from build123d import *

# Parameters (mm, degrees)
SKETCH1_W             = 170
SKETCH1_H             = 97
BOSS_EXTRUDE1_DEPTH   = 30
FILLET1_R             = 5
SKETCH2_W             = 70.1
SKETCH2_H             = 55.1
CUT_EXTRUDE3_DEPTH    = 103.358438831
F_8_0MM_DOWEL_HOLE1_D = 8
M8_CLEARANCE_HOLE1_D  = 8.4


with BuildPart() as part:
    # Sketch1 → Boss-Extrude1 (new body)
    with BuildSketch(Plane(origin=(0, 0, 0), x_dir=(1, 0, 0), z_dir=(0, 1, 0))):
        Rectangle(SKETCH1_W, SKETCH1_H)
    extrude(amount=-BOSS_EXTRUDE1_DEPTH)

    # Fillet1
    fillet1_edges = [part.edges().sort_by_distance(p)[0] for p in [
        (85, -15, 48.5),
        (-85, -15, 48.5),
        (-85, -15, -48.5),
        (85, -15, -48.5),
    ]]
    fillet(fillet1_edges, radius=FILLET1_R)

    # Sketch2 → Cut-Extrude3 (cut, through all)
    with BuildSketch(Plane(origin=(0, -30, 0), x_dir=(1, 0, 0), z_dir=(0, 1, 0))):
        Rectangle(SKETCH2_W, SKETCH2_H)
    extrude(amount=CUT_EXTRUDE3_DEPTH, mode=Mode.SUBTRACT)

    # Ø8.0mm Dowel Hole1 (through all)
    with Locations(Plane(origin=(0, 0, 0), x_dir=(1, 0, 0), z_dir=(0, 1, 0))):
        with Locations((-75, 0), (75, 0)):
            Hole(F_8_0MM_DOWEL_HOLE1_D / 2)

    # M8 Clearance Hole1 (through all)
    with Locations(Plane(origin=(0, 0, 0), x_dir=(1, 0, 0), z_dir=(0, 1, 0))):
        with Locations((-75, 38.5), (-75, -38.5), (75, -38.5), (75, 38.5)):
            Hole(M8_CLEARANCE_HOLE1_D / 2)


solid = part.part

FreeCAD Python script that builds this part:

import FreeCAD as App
import Part
import Sketcher
from FreeCAD import Vector


def edges_at(feature, points):
    """Names of the edges that pass closest to the given points."""
    edges = feature.Shape.Edges
    near = lambda p: min(range(len(edges)), key=lambda i: edges[i].distToShape(Part.Vertex(*p))[0])
    return sorted({f"Edge{near(p) + 1}" for p in points})


def add_polygon(sketch, points):
    """Adds a closed chain of lines whose ends are joined by coincident constraints."""
    first, n = sketch.GeometryCount, len(points)
    for a, b in zip(points, points[1:] + points[:1]):
        sketch.addGeometry(Part.LineSegment(App.Vector(*a, 0), App.Vector(*b, 0)), False)
    for i in range(n):
        sketch.addConstraint(Sketcher.Constraint("Coincident", first + i, 2, first + (i + 1) % n, 1))

doc = App.newDocument("Part")
body = doc.addObject("PartDesign::Body", "Body")

# Sketch on XZ plane
sketch1 = doc.addObject("Sketcher::SketchObject", "Sketch")
body.addObject(sketch1)
sketch1.AttachmentSupport = (doc.XZ_Plane, [""])
sketch1.MapMode = "FlatFace"
add_polygon(sketch1, [(-85, -48.5), (-85, 48.5), (85, 48.5), (85, -48.5)])  # lines 0-3
sketch1.addConstraint([
    Sketcher.Constraint("Vertical", 0),
    Sketcher.Constraint("Horizontal", 1),
    Sketcher.Constraint("Vertical", 2),
    Sketcher.Constraint("Horizontal", 3),
    Sketcher.Constraint("Symmetric", 0, 2, 2, 2, -1, 1),
    Sketcher.Constraint("DistanceX", 1, 1, 1, 2, 170.0),
    Sketcher.Constraint("DistanceY", 0, 1, 0, 2, 97.0),
])
pad1 = doc.addObject("PartDesign::Pad", "Pad")
body.addObject(pad1)
pad1.Profile = sketch1
pad1.Length = 30
doc.recompute()

fillet = doc.addObject("PartDesign::Fillet", "Fillet")
body.addObject(fillet)
fillet.Base = (pad1, edges_at(pad1, [
    (85, -15, 48.5),
    (-85, -15, 48.5),
    (-85, -15, -48.5),
    (85, -15, -48.5),
]))
fillet.Radius = 5

# Sketch on XZ plane
sketch2 = doc.addObject("Sketcher::SketchObject", "Sketch001")
body.addObject(sketch2)
sketch2.AttachmentSupport = (doc.XZ_Plane, [""])
sketch2.MapMode = "FlatFace"
sketch2.AttachmentOffset = App.Placement(Vector(0, 0, 30), App.Rotation())
add_polygon(sketch2, [(-35.05, -27.55), (-35.05, 27.55), (35.05, 27.55), (35.05, -27.55)])  # lines 0-3
sketch2.addConstraint([
    Sketcher.Constraint("Vertical", 0),
    Sketcher.Constraint("Horizontal", 1),
    Sketcher.Constraint("Vertical", 2),
    Sketcher.Constraint("Horizontal", 3),
    Sketcher.Constraint("Symmetric", 0, 2, 2, 2, -1, 1),
    Sketcher.Constraint("DistanceX", 1, 1, 1, 2, 70.1),
    Sketcher.Constraint("DistanceY", 0, 1, 0, 2, 55.1),
])
pocket1 = doc.addObject("PartDesign::Pocket", "Pocket")
body.addObject(pocket1)
pocket1.Profile = sketch2
pocket1.Type = "ThroughAll"

# Sketch on XZ plane
sketch3 = doc.addObject("Sketcher::SketchObject", "Sketch002")
body.addObject(sketch3)
sketch3.AttachmentSupport = (doc.XZ_Plane, [""])
sketch3.MapMode = "FlatFace"
sketch3.addGeometry([
    Part.Circle(Vector(-75, 0, 0), Vector(0, 0, 1), 4),
    Part.Circle(Vector(75, 0, 0), Vector(0, 0, 1), 4),
], False)
sketch3.addConstraint([
    Sketcher.Constraint("Equal", 0, 1),
    Sketcher.Constraint("Symmetric", 0, 3, 1, 3, -1, 1),
    Sketcher.Constraint("PointOnObject", 0, 3, -1),
    Sketcher.Constraint("Diameter", 0, 8.0),
    Sketcher.Constraint("DistanceX", 0, 3, -1, 1, 75.0),
])
doc.recompute()
hole = doc.addObject("PartDesign::Hole", "Hole")
body.addObject(hole)
hole.Profile = sketch3
hole.ThreadType = "None"
hole.Diameter = 8
hole.DepthType = "ThroughAll"
hole.Reversed = True

# Sketch on XZ plane
sketch4 = doc.addObject("Sketcher::SketchObject", "Sketch003")
body.addObject(sketch4)
sketch4.AttachmentSupport = (doc.XZ_Plane, [""])
sketch4.MapMode = "FlatFace"
sketch4.addGeometry([
    Part.Circle(Vector(-75, -38.5, 0), Vector(0, 0, 1), 4.2),
    Part.Circle(Vector(-75, 38.5, 0), Vector(0, 0, 1), 4.2),
    Part.Circle(Vector(75, 38.5, 0), Vector(0, 0, 1), 4.2),
    Part.Circle(Vector(75, -38.5, 0), Vector(0, 0, 1), 4.2),
], False)
sketch4.addConstraint([
    Sketcher.Constraint("Equal", 0, 1),
    Sketcher.Constraint("Equal", 1, 2),
    Sketcher.Constraint("Equal", 2, 3),
    Sketcher.Constraint("Symmetric", 0, 3, 2, 3, -1, 1),
    Sketcher.Constraint("Symmetric", 1, 3, 3, 3, -1, 1),
    Sketcher.Constraint("Symmetric", 1, 3, 2, 3, -2),
    Sketcher.Constraint("Diameter", 0, 8.4),
    Sketcher.Constraint("DistanceX", 0, 3, -1, 1, 75.0),
    Sketcher.Constraint("DistanceY", 0, 3, 1, 3, 77.0),
])
doc.recompute()
hole2 = doc.addObject("PartDesign::Hole", "Hole001")
body.addObject(hole2)
hole2.Profile = sketch4
hole2.ThreadType = "None"
hole2.Diameter = 8.4
hole2.DepthType = "ThroughAll"
hole2.Reversed = True

doc.recompute()
